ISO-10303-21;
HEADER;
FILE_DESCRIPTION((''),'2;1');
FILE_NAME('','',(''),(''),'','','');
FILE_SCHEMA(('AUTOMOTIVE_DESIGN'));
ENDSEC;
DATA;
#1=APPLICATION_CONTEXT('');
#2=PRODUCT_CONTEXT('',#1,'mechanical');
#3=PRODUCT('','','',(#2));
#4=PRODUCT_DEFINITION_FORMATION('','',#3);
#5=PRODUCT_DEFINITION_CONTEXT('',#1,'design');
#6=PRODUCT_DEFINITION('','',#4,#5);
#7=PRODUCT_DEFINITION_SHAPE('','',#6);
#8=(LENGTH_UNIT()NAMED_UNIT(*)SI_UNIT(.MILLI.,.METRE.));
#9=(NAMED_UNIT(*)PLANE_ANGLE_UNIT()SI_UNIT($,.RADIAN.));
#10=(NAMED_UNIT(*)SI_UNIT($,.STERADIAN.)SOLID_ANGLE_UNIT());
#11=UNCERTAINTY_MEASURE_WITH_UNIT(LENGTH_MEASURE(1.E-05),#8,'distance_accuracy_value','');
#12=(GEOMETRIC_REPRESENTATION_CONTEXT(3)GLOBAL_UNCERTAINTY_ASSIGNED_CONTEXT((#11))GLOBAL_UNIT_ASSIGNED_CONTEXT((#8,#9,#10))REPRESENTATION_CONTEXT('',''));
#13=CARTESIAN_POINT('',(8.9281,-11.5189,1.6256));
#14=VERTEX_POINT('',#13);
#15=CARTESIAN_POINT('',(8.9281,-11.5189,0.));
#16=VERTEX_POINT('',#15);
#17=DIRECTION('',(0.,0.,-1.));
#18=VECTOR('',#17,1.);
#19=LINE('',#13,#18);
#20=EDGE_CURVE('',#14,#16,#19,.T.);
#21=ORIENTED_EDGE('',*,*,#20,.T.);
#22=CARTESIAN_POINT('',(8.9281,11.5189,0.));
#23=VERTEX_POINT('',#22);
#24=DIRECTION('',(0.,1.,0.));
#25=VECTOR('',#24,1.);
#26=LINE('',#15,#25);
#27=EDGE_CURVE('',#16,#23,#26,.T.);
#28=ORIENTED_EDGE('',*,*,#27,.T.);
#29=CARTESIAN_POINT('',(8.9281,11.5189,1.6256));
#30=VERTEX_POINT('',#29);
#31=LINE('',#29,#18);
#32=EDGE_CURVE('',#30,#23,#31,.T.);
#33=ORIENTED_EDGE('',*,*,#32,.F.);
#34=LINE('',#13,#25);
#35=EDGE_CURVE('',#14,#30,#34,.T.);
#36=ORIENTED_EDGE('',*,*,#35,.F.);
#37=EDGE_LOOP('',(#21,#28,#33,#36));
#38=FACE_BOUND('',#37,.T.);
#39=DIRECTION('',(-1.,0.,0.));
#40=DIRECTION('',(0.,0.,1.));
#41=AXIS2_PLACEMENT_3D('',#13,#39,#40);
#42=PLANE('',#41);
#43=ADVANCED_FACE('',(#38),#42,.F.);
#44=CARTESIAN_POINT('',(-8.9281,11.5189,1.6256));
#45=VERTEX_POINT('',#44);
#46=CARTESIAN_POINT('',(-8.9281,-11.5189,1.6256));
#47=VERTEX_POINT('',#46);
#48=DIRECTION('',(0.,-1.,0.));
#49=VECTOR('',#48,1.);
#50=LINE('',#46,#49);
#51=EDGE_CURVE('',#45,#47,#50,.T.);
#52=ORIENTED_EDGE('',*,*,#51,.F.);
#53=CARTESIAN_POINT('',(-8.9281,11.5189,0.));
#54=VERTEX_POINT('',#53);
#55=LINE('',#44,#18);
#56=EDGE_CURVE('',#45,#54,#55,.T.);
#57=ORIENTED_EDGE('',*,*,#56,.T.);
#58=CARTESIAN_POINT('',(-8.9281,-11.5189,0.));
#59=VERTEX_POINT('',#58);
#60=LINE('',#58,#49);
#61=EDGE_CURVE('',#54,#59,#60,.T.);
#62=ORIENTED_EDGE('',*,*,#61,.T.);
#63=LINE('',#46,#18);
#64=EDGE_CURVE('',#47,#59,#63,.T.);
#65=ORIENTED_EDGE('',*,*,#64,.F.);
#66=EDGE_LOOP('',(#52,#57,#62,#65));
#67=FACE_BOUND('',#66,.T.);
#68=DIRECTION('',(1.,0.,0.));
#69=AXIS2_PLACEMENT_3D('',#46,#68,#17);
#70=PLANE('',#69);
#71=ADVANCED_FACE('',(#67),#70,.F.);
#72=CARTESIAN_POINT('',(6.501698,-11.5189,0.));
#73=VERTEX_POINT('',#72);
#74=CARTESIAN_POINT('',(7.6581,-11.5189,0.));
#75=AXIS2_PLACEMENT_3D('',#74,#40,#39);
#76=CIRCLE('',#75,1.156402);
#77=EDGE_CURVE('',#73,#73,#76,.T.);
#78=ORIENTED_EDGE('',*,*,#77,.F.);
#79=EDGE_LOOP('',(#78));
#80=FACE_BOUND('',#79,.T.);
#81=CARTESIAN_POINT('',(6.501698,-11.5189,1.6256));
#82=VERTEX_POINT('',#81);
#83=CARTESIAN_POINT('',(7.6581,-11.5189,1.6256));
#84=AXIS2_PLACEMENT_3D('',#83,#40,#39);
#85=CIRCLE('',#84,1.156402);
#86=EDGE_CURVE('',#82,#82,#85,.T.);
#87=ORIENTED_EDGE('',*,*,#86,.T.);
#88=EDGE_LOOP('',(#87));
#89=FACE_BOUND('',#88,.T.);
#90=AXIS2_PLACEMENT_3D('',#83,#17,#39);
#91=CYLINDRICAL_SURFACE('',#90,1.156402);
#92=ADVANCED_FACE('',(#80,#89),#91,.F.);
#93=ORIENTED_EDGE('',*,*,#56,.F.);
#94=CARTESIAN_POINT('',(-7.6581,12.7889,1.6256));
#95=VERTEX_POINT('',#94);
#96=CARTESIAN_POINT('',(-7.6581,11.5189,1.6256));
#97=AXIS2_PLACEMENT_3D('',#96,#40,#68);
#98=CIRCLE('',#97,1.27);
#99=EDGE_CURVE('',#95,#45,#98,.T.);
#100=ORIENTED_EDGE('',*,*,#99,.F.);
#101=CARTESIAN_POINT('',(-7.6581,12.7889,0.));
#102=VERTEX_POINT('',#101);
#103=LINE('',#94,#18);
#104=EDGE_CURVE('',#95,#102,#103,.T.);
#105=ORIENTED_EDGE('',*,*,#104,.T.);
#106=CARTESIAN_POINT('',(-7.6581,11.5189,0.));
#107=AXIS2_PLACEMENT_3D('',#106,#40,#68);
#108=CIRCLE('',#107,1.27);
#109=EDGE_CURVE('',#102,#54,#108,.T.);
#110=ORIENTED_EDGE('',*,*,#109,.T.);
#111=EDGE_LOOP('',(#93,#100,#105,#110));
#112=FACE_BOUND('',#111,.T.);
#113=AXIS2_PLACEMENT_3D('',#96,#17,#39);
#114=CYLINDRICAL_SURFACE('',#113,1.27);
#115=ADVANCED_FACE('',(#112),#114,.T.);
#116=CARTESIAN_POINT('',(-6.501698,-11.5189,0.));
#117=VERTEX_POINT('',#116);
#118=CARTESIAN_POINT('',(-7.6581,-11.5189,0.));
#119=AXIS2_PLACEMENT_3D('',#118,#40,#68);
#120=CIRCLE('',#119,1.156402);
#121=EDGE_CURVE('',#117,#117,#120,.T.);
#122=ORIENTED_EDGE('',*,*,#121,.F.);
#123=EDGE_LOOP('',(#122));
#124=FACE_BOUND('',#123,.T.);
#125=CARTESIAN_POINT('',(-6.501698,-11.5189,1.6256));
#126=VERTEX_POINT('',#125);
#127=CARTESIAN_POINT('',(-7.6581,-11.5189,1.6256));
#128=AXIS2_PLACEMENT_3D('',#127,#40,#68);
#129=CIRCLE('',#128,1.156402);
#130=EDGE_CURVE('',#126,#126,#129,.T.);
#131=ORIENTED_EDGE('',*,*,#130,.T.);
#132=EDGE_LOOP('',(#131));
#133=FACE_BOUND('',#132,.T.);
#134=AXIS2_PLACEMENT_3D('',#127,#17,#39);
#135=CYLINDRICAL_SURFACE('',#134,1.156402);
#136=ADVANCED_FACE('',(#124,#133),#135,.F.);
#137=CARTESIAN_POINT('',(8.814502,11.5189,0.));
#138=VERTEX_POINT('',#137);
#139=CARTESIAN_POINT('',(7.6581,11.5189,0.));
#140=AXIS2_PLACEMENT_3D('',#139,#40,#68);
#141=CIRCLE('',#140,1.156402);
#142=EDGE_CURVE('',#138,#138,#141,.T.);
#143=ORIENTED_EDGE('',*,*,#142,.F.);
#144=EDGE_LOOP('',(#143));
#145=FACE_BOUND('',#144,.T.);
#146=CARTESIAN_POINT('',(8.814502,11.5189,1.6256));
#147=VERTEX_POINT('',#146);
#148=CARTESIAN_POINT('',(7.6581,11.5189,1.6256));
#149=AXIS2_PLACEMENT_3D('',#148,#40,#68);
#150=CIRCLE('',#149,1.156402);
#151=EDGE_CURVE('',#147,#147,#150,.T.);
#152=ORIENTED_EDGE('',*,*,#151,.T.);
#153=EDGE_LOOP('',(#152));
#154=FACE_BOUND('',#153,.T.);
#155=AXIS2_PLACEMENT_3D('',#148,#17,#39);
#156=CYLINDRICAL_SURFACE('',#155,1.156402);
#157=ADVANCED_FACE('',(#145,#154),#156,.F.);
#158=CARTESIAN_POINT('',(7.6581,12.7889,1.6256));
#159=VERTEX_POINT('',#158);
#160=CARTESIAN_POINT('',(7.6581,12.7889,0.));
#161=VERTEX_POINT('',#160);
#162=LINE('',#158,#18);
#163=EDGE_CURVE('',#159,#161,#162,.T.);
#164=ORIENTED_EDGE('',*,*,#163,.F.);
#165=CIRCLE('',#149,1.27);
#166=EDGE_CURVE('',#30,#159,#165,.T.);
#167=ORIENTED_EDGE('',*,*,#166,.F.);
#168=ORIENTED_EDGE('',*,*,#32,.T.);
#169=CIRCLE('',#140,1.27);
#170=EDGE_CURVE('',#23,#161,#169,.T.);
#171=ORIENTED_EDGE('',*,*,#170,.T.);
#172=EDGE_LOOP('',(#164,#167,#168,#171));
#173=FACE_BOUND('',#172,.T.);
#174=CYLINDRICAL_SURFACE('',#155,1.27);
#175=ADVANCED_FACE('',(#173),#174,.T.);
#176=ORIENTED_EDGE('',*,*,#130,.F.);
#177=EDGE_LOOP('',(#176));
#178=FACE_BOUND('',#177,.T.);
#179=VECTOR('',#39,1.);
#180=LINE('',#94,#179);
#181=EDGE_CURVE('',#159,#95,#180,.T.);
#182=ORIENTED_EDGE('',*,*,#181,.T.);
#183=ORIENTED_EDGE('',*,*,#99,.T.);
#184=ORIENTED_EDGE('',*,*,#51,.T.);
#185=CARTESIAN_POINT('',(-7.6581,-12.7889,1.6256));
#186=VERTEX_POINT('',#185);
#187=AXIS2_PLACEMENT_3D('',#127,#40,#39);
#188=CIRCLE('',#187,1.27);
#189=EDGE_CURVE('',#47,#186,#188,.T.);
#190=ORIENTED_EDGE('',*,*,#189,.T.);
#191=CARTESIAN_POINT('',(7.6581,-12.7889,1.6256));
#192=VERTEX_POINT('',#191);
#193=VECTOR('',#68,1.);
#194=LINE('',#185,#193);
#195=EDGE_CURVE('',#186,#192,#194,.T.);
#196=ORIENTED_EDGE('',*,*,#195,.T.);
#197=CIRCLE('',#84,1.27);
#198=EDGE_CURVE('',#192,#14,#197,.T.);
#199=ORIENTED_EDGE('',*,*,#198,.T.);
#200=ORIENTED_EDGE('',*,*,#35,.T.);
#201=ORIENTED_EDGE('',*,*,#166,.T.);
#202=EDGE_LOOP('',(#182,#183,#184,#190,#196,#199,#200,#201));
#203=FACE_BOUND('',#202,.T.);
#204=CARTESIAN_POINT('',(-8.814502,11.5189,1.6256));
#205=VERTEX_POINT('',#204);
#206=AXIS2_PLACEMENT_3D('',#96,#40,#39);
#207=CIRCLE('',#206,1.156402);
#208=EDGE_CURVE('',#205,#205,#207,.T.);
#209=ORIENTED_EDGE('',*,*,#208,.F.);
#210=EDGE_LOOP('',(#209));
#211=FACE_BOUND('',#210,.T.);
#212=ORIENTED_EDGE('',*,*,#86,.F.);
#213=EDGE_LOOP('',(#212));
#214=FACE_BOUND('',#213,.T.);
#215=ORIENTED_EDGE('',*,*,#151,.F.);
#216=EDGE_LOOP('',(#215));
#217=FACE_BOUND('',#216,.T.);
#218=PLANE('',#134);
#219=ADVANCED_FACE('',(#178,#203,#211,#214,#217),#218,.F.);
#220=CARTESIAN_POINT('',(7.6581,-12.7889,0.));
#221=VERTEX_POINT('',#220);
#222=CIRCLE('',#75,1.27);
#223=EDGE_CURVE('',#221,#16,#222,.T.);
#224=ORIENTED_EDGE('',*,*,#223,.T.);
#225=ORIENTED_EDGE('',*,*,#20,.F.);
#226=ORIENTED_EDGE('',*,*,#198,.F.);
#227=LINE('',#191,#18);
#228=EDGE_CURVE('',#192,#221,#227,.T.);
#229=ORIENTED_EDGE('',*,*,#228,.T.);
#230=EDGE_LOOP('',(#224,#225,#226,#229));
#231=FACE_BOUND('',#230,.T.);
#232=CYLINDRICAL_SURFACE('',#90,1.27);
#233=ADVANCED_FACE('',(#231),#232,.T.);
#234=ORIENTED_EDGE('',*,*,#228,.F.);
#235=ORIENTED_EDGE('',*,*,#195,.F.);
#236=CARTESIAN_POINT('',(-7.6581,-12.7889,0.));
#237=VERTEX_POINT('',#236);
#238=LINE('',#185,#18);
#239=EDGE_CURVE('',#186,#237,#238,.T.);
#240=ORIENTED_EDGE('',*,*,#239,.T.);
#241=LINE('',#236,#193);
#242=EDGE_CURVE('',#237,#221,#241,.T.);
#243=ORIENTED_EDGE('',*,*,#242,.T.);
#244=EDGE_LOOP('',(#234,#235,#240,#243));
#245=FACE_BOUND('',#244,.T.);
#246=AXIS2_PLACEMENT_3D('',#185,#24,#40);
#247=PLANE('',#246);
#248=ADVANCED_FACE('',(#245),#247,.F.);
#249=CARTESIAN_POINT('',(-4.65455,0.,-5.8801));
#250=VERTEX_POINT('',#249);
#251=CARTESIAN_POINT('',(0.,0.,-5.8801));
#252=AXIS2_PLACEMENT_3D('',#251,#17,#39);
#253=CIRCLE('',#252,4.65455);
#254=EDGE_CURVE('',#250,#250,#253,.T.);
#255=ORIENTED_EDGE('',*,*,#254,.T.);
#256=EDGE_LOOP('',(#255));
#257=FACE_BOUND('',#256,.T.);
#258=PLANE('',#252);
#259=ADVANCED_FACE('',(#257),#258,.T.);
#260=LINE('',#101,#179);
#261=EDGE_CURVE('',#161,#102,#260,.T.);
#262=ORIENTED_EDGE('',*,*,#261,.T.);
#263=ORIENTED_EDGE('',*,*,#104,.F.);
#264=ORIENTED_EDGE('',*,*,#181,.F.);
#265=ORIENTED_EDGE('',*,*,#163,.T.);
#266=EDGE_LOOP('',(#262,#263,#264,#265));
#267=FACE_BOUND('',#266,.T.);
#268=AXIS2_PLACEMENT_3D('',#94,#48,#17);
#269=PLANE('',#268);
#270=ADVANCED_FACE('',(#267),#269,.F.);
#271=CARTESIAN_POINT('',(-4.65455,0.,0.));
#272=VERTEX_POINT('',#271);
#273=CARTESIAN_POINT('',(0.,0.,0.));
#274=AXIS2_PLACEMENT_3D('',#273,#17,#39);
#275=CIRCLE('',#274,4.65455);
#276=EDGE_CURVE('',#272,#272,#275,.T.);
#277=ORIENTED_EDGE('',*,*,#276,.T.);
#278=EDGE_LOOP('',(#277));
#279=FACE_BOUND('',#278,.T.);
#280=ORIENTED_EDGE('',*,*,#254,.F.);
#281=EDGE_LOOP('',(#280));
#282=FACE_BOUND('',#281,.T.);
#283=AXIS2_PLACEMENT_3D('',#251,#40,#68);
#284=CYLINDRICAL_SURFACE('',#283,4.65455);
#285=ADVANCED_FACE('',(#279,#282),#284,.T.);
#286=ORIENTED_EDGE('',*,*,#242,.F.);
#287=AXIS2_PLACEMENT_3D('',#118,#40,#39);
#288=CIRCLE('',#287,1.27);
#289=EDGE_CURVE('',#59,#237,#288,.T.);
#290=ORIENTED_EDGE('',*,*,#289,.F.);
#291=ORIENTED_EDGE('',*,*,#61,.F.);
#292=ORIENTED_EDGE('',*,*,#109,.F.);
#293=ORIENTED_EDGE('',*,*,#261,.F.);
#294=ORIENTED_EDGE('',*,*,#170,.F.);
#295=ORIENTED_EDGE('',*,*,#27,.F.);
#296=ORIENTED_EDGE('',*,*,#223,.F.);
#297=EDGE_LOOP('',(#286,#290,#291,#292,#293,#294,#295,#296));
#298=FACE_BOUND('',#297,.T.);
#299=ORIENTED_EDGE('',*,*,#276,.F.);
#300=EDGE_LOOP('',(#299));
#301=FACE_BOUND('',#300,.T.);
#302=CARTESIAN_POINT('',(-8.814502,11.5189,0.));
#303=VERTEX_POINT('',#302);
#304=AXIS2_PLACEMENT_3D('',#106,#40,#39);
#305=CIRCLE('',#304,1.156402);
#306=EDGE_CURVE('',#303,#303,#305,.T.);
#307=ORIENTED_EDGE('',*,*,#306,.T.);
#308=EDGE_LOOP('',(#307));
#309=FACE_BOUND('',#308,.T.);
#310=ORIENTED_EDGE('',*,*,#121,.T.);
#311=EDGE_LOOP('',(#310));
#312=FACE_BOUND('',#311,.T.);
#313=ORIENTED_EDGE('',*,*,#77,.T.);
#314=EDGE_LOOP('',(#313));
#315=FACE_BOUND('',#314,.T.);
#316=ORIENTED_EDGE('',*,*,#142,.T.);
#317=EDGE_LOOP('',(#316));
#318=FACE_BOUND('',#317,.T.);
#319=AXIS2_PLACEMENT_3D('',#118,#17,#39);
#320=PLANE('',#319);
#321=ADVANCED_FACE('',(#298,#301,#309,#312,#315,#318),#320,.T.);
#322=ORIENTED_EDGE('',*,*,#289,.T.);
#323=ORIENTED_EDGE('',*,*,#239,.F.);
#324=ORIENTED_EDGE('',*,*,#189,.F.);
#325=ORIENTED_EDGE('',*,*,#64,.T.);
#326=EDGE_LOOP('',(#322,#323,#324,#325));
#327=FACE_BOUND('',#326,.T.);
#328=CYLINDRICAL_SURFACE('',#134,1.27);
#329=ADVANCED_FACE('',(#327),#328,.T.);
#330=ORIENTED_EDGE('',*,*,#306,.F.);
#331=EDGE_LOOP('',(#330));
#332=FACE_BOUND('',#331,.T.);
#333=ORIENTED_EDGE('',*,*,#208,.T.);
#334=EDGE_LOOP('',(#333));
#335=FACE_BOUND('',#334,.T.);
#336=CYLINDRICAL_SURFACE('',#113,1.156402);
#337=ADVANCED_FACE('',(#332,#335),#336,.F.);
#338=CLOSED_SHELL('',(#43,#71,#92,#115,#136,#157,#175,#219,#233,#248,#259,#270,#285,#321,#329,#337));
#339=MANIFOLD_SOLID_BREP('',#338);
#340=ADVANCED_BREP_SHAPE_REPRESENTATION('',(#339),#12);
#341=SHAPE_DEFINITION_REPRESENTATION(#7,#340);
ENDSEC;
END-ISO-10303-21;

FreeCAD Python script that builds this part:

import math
import FreeCAD as App
import Part
import Sketcher

V = App.Vector
Q = App.Units.Quantity

doc = App.newDocument("Part")
body = doc.addObject("PartDesign::Body", "Body")

sketch1 = body.newObject("Sketcher::SketchObject", "Sketch")
sketch1.AttachmentSupport = (doc.getObject("XY_Plane"), [""])
sketch1.MapMode = "FlatFace"
sketch1.addGeometry([
    Part.LineSegment(V(-7.7, -12.8, 0), V(7.7, -12.8, 0)),
    Part.ArcOfCircle(Part.Circle(V(7.7, -11.5, 0), V(0, 0, 1), 1.3), math.radians(-90), math.radians(0)),
    Part.LineSegment(V(8.9, -11.5, 0), V(8.9, 11.5, 0)),
    Part.ArcOfCircle(Part.Circle(V(7.7, 11.5, 0), V(0, 0, 1), 1.3), math.radians(0), math.radians(90)),
    Part.LineSegment(V(7.7, 12.8, 0), V(-7.7, 12.8, 0)),
    Part.ArcOfCircle(Part.Circle(V(-7.7, 11.5, 0), V(0, 0, 1), 1.3), math.radians(90), math.radians(180)),
    Part.LineSegment(V(-8.9, 11.5, 0), V(-8.9, -11.5, 0)),
    Part.ArcOfCircle(Part.Circle(V(-7.7, -11.5, 0), V(0, 0, 1), 1.3), math.radians(180), math.radians(270)),
    Part.Circle(V(-7.7, -11.5, 0), V(0, 0, 1), 1.2),
    Part.Circle(V(7.7, -11.5, 0), V(0, 0, 1), 1.2),
    Part.Circle(V(-7.7, 11.5, 0), V(0, 0, 1), 1.2),
    Part.Circle(V(7.7, 11.5, 0), V(0, 0, 1), 1.2),
], False)
sketch1.addConstraint([
    Sketcher.Constraint("Tangent", 0, 2, 1, 1),
    Sketcher.Constraint("Tangent", 1, 2, 2, 1),
    Sketcher.Constraint("Tangent", 2, 2, 3, 1),
    Sketcher.Constraint("Tangent", 3, 2, 4, 1),
    Sketcher.Constraint("Tangent", 4, 2, 5, 1),
    Sketcher.Constraint("Tangent", 5, 2, 6, 1),
    Sketcher.Constraint("Tangent", 6, 2, 7, 1),
    Sketcher.Constraint("Tangent", 7, 2, 0, 1),
    Sketcher.Constraint("Horizontal", 0),
    Sketcher.Constraint("Vertical", 2),
    Sketcher.Constraint("Horizontal", 4),
    Sketcher.Constraint("Vertical", 6),
    Sketcher.Constraint("Coincident", 8, 3, 7, 3),
    Sketcher.Constraint("Coincident", 9, 3, 1, 3),
    Sketcher.Constraint("Coincident", 10, 3, 5, 3),
    Sketcher.Constraint("Coincident", 11, 3, 3, 3),
    Sketcher.Constraint("Equal", 1, 3),
    Sketcher.Constraint("Equal", 3, 5),
    Sketcher.Constraint("Equal", 5, 7),
    Sketcher.Constraint("Equal", 8, 9),
    Sketcher.Constraint("Equal", 9, 10),
    Sketcher.Constraint("Equal", 10, 11),
    Sketcher.Constraint("Symmetric", 1, 3, 5, 3, -1, 1),
    Sketcher.Constraint("Radius", 1, Q("0.05 in")),
    Sketcher.Constraint("DistanceX", 0, 1, 0, 2, Q("0.603 in")),
    Sketcher.Constraint("DistanceY", 2, 1, 2, 2, Q("0.907 in")),
    Sketcher.Constraint("Diameter", 8, Q("2.312803 mm")),
])
pad1 = body.newObject("PartDesign::Pad", "Pad")
pad1.Profile = sketch1
pad1.Length = Q("0.064 in")

sketch2 = body.newObject("Sketcher::SketchObject", "Sketch001")
sketch2.AttachmentSupport = (doc.getObject("XY_Plane"), [""])
sketch2.MapMode = "FlatFace"
sketch2.addGeometry(Part.Circle(V(0, 0, 0), V(0, 0, 1), 4.7), False)
sketch2.addConstraint([
    Sketcher.Constraint("Coincident", 0, 3, -1, 1),
    Sketcher.Constraint("Diameter", 0, Q("0.3665 in")),
])
pad2 = body.newObject("PartDesign::Pad", "Pad001")
pad2.Profile = sketch2
pad2.Length = Q("0.2315 in")
pad2.Reversed = True

doc.recompute()
